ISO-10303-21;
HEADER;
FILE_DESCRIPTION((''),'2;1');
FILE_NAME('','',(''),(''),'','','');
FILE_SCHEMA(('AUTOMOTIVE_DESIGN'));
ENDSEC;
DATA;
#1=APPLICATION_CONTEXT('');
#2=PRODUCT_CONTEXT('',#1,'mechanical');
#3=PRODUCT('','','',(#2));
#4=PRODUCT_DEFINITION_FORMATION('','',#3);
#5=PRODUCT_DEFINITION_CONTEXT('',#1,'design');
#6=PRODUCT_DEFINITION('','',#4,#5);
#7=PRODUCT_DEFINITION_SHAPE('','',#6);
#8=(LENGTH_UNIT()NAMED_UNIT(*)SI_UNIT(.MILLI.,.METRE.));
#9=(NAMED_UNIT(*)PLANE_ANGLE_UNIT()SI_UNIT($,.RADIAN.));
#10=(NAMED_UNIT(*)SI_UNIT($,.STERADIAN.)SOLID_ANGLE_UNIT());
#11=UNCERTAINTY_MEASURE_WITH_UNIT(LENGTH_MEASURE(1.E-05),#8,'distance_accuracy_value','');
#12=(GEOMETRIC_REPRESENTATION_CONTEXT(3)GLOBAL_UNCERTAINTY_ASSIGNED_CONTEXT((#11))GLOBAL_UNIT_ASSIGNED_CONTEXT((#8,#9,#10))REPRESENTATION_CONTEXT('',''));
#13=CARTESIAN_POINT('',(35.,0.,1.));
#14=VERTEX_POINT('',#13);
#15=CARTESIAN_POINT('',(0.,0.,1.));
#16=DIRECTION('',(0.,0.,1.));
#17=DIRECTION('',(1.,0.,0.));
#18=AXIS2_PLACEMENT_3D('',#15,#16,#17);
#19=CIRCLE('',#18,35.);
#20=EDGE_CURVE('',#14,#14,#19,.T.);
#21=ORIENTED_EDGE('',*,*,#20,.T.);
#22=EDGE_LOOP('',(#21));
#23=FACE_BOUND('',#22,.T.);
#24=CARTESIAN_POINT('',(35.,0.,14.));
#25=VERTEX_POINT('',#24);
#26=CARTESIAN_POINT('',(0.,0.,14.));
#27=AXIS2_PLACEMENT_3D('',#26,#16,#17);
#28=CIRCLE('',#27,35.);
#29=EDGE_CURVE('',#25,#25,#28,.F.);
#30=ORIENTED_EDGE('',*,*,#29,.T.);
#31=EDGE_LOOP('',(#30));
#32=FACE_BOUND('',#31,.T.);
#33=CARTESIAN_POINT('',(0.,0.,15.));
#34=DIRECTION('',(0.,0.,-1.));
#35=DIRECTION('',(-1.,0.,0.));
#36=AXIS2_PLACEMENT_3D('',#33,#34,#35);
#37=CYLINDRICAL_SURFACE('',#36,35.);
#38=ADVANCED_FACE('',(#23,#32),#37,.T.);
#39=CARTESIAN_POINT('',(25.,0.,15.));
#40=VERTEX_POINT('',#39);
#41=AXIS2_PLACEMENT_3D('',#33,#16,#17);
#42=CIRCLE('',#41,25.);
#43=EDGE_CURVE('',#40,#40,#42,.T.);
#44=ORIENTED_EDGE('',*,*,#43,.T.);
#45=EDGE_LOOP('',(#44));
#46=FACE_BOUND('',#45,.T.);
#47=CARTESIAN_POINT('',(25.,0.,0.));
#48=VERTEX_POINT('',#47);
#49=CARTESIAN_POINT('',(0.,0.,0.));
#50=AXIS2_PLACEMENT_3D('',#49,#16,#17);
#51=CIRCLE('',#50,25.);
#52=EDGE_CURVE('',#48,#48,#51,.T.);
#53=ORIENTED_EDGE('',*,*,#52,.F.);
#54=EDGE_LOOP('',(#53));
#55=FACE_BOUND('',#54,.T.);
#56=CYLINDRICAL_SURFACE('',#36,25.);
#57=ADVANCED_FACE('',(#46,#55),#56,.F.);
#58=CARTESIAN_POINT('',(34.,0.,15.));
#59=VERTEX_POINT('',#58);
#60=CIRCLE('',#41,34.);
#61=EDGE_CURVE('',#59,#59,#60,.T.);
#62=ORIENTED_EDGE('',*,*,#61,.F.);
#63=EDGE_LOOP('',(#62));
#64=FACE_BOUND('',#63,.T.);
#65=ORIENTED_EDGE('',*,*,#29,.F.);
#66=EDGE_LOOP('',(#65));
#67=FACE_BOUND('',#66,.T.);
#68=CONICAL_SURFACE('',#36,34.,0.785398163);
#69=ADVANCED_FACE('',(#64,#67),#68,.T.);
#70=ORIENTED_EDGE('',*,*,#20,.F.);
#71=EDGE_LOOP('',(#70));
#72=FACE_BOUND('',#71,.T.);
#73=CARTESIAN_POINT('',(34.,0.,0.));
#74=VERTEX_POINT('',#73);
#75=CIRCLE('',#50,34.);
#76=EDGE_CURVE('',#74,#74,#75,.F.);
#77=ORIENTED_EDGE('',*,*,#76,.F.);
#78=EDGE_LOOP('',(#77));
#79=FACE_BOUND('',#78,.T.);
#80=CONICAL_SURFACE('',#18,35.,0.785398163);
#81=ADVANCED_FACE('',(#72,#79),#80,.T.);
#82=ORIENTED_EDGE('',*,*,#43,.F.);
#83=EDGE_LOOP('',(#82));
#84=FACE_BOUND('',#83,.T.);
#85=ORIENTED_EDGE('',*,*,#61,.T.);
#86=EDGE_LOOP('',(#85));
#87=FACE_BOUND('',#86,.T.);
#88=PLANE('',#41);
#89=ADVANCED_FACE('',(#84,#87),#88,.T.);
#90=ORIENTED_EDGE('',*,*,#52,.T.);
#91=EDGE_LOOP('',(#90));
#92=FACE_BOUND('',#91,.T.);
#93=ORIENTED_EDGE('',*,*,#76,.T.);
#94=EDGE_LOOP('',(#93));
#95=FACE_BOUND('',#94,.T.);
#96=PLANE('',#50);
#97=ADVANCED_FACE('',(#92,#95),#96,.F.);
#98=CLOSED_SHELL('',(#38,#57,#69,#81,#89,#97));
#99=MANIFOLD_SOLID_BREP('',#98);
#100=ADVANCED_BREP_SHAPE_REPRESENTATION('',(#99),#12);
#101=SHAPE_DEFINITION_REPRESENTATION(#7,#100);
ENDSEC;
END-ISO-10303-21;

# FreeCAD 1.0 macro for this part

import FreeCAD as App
import Part
import Sketcher


def edges_at(feature, points):
    """Names of the edges that pass closest to the given points."""
    edges = feature.Shape.Edges
    near = lambda p: min(range(len(edges)), key=lambda i: edges[i].distToShape(Part.Vertex(*p))[0])
    return sorted({f"Edge{near(p) + 1}" for p in points})

doc = App.newDocument("Part")
body = doc.addObject("PartDesign::Body", "Body")

# Sketch on XY plane
sketch1 = body.newObject("Sketcher::SketchObject", "Sketch")
sketch1.AttachmentSupport = (doc.getObject("XY_Plane"), [""])
sketch1.MapMode = "FlatFace"
sketch1.addGeometry([
    Part.Circle(App.Vector(0, 0, 0), App.Vector(0, 0, 1), 35),
    Part.Circle(App.Vector(0, 0, 0), App.Vector(0, 0, 1), 25),
], False)
sketch1.addConstraint([
    Sketcher.Constraint("Coincident", 0, 3, -1, 1),
    Sketcher.Constraint("Coincident", 1, 3, -1, 1),
    Sketcher.Constraint("Diameter", 0, 70.0),
    Sketcher.Constraint("Diameter", 1, 50.0),
])
pad1 = body.newObject("PartDesign::Pad", "Pad")
pad1.Profile = sketch1
pad1.Length = 15
doc.recompute()

chamfer = body.newObject("PartDesign::Chamfer", "Chamfer")
chamfer.Base = (pad1, edges_at(pad1, [(-35, 0, 0), (-35, 0, 15)]))
chamfer.Size = 1

doc.recompute()
